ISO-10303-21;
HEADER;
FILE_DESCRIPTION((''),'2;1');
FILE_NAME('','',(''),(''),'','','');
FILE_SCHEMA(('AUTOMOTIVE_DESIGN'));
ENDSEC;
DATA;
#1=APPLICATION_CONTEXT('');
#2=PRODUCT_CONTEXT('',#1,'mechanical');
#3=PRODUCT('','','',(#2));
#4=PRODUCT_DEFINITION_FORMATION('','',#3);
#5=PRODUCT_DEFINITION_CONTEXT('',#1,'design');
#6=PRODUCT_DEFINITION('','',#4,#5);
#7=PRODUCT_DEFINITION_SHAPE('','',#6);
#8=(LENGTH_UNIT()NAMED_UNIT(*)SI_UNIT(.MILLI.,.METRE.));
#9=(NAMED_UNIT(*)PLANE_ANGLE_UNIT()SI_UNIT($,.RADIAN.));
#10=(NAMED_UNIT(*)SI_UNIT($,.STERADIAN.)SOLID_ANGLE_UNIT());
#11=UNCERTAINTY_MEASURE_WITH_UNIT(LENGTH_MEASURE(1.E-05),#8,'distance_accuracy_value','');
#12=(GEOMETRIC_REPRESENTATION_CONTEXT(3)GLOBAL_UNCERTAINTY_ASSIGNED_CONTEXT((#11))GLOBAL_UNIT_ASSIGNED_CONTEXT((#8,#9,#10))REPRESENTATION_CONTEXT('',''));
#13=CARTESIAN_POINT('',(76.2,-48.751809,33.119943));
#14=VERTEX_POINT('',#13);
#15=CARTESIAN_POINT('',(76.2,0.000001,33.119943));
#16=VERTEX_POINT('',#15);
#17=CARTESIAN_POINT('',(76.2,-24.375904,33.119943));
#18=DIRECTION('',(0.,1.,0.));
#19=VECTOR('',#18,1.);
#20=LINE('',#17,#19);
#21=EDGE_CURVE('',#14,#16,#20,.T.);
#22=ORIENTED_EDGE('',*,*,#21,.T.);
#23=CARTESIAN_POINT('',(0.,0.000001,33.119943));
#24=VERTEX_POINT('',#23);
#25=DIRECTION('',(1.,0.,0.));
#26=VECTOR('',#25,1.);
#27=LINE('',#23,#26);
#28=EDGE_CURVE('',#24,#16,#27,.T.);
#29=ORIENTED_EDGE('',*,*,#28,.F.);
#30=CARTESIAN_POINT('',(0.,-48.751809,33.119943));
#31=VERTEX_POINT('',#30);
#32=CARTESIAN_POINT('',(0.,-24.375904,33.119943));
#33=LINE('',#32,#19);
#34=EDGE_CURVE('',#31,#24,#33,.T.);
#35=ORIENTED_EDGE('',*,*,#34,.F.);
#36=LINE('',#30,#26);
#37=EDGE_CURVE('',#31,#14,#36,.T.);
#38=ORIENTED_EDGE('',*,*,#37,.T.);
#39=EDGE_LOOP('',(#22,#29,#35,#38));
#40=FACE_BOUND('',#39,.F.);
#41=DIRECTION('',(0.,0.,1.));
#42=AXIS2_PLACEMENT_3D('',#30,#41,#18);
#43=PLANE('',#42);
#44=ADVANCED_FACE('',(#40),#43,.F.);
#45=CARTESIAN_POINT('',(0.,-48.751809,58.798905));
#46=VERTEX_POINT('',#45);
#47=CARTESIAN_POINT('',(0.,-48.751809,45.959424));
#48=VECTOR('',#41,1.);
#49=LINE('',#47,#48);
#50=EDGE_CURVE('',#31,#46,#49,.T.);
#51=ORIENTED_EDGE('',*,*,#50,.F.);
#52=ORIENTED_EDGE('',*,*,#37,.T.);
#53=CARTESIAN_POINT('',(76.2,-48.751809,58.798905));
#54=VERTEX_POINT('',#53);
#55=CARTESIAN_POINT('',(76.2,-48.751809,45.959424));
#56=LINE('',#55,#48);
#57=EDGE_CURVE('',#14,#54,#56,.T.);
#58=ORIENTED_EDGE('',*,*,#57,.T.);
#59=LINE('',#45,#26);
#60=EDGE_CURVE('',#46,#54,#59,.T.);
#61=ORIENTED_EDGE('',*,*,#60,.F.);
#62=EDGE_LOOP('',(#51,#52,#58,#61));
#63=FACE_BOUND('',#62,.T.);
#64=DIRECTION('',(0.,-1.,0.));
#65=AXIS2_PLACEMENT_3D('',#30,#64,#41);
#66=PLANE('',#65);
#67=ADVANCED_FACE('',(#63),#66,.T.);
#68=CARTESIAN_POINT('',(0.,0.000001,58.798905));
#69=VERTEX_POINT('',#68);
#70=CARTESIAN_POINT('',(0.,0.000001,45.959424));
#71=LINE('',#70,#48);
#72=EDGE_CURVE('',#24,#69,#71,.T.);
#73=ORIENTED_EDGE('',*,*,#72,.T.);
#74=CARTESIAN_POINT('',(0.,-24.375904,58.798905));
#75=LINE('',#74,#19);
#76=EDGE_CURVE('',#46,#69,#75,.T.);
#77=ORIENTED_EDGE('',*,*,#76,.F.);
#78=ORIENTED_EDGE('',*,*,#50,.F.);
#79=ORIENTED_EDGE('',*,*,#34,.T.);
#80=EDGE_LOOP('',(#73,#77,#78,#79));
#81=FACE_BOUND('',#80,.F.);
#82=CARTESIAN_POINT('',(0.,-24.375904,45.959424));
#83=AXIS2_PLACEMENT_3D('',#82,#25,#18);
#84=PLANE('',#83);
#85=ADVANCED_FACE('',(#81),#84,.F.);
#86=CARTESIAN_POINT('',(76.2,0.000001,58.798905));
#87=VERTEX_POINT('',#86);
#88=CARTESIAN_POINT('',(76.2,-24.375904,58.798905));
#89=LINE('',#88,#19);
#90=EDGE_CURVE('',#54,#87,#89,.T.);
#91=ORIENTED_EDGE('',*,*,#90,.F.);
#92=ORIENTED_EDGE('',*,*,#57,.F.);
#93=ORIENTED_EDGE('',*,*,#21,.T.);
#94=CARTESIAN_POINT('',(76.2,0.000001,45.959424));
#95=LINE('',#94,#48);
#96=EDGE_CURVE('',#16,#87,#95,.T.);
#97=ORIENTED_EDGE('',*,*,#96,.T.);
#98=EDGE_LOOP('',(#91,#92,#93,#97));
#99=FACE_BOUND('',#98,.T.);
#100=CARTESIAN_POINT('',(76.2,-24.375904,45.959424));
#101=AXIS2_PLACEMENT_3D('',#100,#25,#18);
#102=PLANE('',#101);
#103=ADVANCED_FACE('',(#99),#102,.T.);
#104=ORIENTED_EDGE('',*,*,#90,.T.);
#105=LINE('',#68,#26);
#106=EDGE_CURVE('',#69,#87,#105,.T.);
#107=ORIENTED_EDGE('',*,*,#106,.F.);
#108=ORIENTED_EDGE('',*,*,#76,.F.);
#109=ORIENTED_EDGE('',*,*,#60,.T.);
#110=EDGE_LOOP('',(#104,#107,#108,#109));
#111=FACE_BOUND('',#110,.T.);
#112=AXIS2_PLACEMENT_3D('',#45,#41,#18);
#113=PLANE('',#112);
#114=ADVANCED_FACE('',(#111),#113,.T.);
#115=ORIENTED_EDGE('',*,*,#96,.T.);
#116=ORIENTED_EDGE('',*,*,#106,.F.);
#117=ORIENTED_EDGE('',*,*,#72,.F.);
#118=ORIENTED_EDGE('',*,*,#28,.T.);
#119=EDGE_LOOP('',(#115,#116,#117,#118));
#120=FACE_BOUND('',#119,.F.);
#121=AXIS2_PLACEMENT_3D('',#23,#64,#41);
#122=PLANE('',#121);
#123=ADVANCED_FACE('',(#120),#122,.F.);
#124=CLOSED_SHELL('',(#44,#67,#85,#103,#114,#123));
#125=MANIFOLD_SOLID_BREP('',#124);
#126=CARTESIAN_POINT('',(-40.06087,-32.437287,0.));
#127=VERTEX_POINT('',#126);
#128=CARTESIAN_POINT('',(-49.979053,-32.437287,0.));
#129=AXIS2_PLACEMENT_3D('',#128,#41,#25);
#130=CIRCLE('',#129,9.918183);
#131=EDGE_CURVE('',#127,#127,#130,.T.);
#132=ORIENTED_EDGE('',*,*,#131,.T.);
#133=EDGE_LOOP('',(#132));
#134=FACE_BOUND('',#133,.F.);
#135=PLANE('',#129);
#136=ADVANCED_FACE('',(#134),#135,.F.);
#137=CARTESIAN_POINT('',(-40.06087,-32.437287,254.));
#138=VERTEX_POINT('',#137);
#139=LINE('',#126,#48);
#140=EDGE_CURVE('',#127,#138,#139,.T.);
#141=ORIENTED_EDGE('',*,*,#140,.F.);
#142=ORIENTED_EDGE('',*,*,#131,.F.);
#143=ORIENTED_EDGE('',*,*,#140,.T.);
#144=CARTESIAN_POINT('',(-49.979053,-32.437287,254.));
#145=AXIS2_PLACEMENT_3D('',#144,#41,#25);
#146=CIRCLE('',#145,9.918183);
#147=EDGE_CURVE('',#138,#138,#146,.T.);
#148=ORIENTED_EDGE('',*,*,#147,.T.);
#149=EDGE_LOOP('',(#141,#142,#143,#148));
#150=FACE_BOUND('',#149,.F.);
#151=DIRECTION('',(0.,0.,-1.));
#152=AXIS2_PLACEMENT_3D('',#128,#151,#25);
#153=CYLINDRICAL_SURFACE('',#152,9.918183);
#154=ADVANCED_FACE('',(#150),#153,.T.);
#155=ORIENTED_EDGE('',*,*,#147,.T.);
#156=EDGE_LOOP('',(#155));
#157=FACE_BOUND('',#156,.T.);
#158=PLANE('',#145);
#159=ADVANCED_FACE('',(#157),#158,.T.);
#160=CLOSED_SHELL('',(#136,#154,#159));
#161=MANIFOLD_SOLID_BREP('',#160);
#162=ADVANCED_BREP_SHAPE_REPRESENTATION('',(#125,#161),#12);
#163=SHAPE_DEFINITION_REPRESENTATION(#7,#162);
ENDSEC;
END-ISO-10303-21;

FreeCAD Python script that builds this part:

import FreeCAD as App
import Part
import Sketcher
from FreeCAD import Vector
Q = App.Units.Quantity

doc = App.newDocument("Part")
body = doc.addObject("PartDesign::Body", "Body")

sketch1 = body.newObject("Sketcher::SketchObject", "Sketch")
sketch1.AttachmentSupport = (doc.getObject("XY_Plane"), [""])
sketch1.MapMode = "FlatFace"
sketch1.addGeometry(Part.Circle(Vector(-50, -32, 0), Vector(0, 0, 1), 10), False)
sketch1.addConstraint([
    Sketcher.Constraint("Diameter", 0, Q("19.836366 mm")),
    Sketcher.Constraint("DistanceX", 0, 3, -1, 1, Q("49.979053 mm")),
    Sketcher.Constraint("DistanceY", 0, 3, -1, 1, Q("32.437287 mm")),
])
pad1 = body.newObject("PartDesign::Pad", "Pad")
pad1.Profile = sketch1
pad1.Length = Q("10 in")
body2 = doc.addObject("PartDesign::Body", "Body001")

sketch2 = body2.newObject("Sketcher::SketchObject", "Sketch001")
sketch2.AttachmentSupport = (doc.getObject("YZ_Plane001"), [""])
sketch2.MapMode = "FlatFace"
sketch2.addGeometry([
    Part.LineSegment(Vector(-49, 59, 0), Vector(-49, 33, 0)),
    Part.LineSegment(Vector(-49, 33, 0), Vector(0, 33, 0)),
    Part.LineSegment(Vector(0, 33, 0), Vector(0, 59, 0)),
    Part.LineSegment(Vector(0, 59, 0), Vector(-49, 59, 0)),
], False)
sketch2.addConstraint([
    Sketcher.Constraint("Coincident", 0, 2, 1, 1),
    Sketcher.Constraint("Coincident", 1, 2, 2, 1),
    Sketcher.Constraint("Coincident", 2, 2, 3, 1),
    Sketcher.Constraint("Coincident", 3, 2, 0, 1),
    Sketcher.Constraint("Vertical", 0),
    Sketcher.Constraint("Horizontal", 1),
    Sketcher.Constraint("Vertical", 2),
    Sketcher.Constraint("Horizontal", 3),
    Sketcher.Constraint("PointOnObject", 1, 2, -2),
    Sketcher.Constraint("DistanceX", 1, 1, 1, 2, Q("48.751809 mm")),
    Sketcher.Constraint("DistanceY", 0, 2, 0, 1, Q("25.678962 mm")),
    Sketcher.Constraint("DistanceY", -1, 1, 0, 2, Q("33.119943 mm")),
])
pad2 = body2.newObject("PartDesign::Pad", "Pad001")
pad2.Profile = sketch2
pad2.Length = Q("3 in")

doc.recompute()
